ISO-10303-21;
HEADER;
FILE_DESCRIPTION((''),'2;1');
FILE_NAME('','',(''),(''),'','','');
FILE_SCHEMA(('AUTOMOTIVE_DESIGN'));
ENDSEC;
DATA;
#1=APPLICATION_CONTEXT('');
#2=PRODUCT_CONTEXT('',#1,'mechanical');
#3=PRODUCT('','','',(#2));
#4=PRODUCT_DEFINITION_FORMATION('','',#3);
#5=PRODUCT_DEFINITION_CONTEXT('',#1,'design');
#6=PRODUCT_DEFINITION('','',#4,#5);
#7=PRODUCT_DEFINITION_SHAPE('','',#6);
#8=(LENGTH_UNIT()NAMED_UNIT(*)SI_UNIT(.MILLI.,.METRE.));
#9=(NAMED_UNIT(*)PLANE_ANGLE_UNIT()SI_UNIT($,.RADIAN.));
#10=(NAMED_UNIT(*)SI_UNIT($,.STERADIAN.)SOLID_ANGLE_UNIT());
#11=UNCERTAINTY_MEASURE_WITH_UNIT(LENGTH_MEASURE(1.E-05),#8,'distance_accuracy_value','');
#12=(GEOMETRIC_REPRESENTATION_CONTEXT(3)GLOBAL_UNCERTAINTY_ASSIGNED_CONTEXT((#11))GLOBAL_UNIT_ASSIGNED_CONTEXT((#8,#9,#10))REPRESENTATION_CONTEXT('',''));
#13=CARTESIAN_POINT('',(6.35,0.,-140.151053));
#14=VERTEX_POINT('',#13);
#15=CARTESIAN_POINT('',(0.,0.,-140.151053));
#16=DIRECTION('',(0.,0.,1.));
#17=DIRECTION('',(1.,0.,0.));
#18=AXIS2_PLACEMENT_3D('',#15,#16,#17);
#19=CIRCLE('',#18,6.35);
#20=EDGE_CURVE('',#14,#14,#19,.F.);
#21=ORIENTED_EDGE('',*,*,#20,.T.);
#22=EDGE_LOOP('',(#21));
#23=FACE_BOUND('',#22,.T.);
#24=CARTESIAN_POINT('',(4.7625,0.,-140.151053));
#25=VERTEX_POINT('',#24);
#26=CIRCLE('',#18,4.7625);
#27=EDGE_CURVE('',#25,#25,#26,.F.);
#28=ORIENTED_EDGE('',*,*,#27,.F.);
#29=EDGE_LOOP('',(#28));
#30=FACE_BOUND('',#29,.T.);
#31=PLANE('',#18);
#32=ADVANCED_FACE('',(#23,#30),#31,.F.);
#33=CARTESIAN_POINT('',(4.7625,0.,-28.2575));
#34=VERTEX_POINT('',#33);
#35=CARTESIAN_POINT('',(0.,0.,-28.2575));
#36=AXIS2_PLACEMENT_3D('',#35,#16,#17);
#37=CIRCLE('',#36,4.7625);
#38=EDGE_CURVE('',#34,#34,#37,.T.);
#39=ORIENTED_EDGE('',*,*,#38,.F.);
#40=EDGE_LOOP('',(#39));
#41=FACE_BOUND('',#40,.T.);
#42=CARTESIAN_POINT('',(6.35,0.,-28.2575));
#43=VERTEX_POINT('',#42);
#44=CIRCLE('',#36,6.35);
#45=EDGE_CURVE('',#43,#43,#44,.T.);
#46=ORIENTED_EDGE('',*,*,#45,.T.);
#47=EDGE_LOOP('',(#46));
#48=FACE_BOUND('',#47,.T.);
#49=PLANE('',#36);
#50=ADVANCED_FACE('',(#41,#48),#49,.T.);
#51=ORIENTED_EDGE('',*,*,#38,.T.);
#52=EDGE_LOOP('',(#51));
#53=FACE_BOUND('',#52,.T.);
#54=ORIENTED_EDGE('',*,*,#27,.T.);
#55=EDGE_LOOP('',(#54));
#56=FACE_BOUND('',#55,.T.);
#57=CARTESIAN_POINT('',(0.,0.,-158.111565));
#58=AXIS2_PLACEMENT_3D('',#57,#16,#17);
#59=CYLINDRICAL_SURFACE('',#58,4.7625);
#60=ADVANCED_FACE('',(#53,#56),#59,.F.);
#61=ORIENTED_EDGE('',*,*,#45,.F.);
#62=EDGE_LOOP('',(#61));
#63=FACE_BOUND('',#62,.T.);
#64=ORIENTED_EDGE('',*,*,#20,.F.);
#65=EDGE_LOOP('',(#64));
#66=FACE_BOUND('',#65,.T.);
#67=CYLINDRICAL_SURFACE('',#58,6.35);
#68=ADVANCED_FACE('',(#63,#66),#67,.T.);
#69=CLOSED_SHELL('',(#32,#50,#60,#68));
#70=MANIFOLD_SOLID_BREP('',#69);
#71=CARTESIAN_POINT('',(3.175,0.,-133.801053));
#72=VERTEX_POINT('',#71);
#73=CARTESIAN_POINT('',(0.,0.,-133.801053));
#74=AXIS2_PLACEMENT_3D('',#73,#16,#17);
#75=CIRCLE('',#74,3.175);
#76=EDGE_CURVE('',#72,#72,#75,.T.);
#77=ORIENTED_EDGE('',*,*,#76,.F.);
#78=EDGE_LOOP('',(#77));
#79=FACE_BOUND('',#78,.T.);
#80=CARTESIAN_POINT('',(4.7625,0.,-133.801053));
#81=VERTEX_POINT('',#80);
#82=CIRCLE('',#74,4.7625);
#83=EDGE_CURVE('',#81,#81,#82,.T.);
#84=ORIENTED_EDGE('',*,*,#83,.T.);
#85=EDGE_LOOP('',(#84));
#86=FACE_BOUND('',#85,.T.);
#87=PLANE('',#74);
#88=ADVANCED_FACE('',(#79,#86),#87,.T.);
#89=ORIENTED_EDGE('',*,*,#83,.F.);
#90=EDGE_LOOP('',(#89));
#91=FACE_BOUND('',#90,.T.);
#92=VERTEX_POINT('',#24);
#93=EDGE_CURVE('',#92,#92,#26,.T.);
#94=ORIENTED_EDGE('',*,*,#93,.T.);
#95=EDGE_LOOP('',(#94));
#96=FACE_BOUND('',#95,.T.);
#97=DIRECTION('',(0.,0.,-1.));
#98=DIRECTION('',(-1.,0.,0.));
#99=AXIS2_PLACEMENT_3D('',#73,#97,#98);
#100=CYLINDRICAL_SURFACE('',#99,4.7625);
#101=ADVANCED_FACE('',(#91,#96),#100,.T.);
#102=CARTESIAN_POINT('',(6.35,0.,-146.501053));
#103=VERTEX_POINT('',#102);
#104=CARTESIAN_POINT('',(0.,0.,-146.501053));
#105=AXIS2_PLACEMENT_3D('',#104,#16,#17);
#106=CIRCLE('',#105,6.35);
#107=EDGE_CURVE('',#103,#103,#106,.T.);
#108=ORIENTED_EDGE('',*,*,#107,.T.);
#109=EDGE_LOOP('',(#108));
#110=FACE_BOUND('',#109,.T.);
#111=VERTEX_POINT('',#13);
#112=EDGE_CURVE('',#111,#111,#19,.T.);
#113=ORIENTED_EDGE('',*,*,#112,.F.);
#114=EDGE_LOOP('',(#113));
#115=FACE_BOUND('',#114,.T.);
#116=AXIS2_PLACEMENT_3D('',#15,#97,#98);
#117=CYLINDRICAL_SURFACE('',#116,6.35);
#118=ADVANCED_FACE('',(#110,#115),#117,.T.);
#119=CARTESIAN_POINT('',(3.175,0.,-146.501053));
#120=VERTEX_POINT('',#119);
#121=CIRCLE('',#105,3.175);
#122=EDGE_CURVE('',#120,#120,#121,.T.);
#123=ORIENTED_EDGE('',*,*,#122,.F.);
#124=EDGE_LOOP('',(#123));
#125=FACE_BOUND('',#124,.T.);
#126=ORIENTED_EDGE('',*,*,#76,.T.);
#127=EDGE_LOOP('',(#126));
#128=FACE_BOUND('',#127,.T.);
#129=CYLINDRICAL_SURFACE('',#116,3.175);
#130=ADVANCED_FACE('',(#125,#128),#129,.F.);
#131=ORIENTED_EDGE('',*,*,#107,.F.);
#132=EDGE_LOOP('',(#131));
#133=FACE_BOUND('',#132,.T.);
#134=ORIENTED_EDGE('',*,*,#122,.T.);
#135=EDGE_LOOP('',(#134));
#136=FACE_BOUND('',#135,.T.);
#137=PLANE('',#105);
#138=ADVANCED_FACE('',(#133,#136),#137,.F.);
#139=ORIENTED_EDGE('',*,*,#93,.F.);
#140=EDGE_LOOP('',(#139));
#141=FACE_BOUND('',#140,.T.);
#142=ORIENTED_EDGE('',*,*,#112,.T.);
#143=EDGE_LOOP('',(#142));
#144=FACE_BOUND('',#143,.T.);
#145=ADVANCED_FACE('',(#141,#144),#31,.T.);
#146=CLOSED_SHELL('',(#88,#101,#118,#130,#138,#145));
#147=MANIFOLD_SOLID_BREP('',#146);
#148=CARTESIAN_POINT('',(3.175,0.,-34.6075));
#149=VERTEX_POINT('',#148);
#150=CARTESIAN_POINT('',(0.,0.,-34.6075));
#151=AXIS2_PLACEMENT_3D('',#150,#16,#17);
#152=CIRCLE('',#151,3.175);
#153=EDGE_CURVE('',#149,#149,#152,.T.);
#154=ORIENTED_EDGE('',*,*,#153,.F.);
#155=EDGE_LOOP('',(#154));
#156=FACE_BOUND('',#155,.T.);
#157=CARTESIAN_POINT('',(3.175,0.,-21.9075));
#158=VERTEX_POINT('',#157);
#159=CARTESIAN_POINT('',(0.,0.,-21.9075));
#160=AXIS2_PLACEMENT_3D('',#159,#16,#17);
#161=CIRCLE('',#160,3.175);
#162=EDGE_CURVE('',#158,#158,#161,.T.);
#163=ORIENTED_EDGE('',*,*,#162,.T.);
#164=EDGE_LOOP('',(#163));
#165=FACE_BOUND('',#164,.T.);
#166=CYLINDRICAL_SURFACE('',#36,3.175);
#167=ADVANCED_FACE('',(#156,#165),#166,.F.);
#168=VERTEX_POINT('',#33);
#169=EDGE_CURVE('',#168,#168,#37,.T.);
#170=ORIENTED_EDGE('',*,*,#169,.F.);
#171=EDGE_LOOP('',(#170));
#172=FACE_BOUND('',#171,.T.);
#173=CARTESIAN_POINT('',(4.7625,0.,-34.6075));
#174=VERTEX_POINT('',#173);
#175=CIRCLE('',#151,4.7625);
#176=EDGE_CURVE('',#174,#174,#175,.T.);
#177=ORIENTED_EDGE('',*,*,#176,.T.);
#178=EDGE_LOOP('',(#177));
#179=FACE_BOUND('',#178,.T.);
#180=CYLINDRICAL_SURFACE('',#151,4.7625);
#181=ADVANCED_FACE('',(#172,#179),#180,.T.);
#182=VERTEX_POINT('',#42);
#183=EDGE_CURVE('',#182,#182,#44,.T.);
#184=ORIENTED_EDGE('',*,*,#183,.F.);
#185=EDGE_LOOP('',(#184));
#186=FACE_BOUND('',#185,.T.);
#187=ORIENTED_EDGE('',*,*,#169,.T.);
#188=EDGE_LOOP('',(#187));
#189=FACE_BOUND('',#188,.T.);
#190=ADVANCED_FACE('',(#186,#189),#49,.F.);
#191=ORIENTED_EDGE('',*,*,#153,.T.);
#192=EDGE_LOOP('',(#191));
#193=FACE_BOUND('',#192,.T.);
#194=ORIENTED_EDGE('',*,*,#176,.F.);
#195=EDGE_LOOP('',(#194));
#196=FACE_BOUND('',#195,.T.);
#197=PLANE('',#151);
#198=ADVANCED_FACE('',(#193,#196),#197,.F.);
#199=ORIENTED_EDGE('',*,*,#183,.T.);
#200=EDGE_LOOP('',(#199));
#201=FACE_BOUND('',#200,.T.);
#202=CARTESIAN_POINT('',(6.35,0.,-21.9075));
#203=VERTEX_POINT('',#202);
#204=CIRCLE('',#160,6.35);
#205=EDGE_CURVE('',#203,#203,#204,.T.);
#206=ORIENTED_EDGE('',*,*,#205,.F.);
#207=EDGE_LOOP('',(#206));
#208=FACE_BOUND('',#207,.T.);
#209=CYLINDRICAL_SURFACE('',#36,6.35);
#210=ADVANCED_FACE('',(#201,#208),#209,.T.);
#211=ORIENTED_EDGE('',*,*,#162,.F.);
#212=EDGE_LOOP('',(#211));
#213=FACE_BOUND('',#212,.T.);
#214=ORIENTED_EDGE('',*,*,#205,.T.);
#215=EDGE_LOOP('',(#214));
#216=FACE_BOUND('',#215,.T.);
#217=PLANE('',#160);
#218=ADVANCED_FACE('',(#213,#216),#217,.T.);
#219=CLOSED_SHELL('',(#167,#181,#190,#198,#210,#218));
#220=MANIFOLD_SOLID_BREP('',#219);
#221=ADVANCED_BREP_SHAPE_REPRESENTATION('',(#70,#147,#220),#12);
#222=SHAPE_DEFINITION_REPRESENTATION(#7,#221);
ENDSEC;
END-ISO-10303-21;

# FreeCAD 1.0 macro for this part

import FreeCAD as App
import Part
import Sketcher

V = App.Vector
Q = App.Units.Quantity

doc = App.newDocument("Part")
body = doc.addObject("PartDesign::Body", "Body")

# Sketch on XY plane
sketch1 = doc.addObject("Sketcher::SketchObject", "Sketch")
body.addObject(sketch1)
sketch1.AttachmentSupport = (doc.XY_Plane, [""])
sketch1.MapMode = "FlatFace"
sketch1.AttachmentOffset = App.Placement(V(0, 0, -0.8625 * 25.4), App.Rotation())
sketch1.addGeometry(Part.Circle(V(0, 0, 0), V(0, 0, 1), 6.3), False)
sketch1.addGeometry(Part.Circle(V(0, 0, 0), V(0, 0, 1), 3.2), False)
sketch1.addConstraint(Sketcher.Constraint("Coincident", 0, 3, -1, 1))
sketch1.addConstraint(Sketcher.Constraint("Coincident", 1, 3, -1, 1))
sketch1.addConstraint(Sketcher.Constraint("Diameter", 0, Q("0.5 in")))
sketch1.addConstraint(Sketcher.Constraint("Diameter", 1, Q("0.25 in")))
pad1 = doc.addObject("PartDesign::Pad", "Pad")
body.addObject(pad1)
pad1.Profile = sketch1
pad1.Length = Q("0.25 in")
pad1.Reversed = True

# Sketch on XY plane
sketch2 = doc.addObject("Sketcher::SketchObject", "Sketch001")
body.addObject(sketch2)
sketch2.AttachmentSupport = (doc.XY_Plane, [""])
sketch2.MapMode = "FlatFace"
sketch2.AttachmentOffset = App.Placement(V(0, 0, -1.1125 * 25.4), App.Rotation())
sketch2.addGeometry(Part.Circle(V(0, 0, 0), V(0, 0, 1), 4.8), False)
sketch2.addGeometry(Part.Circle(V(0, 0, 0), V(0, 0, 1), 3.2), False)
sketch2.addConstraint(Sketcher.Constraint("Coincident", 0, 3, -1, 1))
sketch2.addConstraint(Sketcher.Constraint("Coincident", 1, 3, -1, 1))
sketch2.addConstraint(Sketcher.Constraint("Diameter", 1, Q("0.25 in")))
sketch2.addConstraint(Sketcher.Constraint("Diameter", 0, Q("0.375 in")))
pad2 = doc.addObject("PartDesign::Pad", "Pad001")
body.addObject(pad2)
pad2.Profile = sketch2
pad2.Length = Q("0.25 in")
pad2.Reversed = True
body2 = doc.addObject("PartDesign::Body", "Body001")

# Sketch on XY plane
sketch3 = doc.addObject("Sketcher::SketchObject", "Sketch002")
body2.addObject(sketch3)
sketch3.AttachmentSupport = (doc.getObject("XY_Plane001"), [""])
sketch3.MapMode = "FlatFace"
sketch3.AttachmentOffset = App.Placement(V(0, 0, -146.501053), App.Rotation())
sketch3.addGeometry(Part.Circle(V(0, 0, 0), V(0, 0, 1), 6.3), False)
sketch3.addGeometry(Part.Circle(V(0, 0, 0), V(0, 0, 1), 3.2), False)
sketch3.addConstraint(Sketcher.Constraint("Coincident", 0, 3, -1, 1))
sketch3.addConstraint(Sketcher.Constraint("Coincident", 1, 3, -1, 1))
sketch3.addConstraint(Sketcher.Constraint("Diameter", 0, Q("0.5 in")))
sketch3.addConstraint(Sketcher.Constraint("Diameter", 1, Q("0.25 in")))
pad3 = doc.addObject("PartDesign::Pad", "Pad002")
body2.addObject(pad3)
pad3.Profile = sketch3
pad3.Length = Q("0.25 in")

# Sketch on XY plane
sketch4 = doc.addObject("Sketcher::SketchObject", "Sketch003")
body2.addObject(sketch4)
sketch4.AttachmentSupport = (doc.getObject("XY_Plane001"), [""])
sketch4.MapMode = "FlatFace"
sketch4.AttachmentOffset = App.Placement(V(0, 0, -133.801053), App.Rotation())
sketch4.addGeometry(Part.Circle(V(0, 0, 0), V(0, 0, 1), 4.8), False)
sketch4.addGeometry(Part.Circle(V(0, 0, 0), V(0, 0, 1), 3.2), False)
sketch4.addConstraint(Sketcher.Constraint("Coincident", 0, 3, -1, 1))
sketch4.addConstraint(Sketcher.Constraint("Coincident", 1, 3, -1, 1))
sketch4.addConstraint(Sketcher.Constraint("Diameter", 1, Q("0.25 in")))
sketch4.addConstraint(Sketcher.Constraint("Diameter", 0, Q("0.375 in")))
pad4 = doc.addObject("PartDesign::Pad", "Pad003")
body2.addObject(pad4)
pad4.Profile = sketch4
pad4.Length = Q("0.25 in")
pad4.Reversed = True
body3 = doc.addObject("PartDesign::Body", "Body002")

# Sketch on XY plane
sketch5 = doc.addObject("Sketcher::SketchObject", "Sketch004")
body3.addObject(sketch5)
sketch5.AttachmentSupport = (doc.getObject("XY_Plane002"), [""])
sketch5.MapMode = "FlatFace"
sketch5.AttachmentOffset = App.Placement(V(0, 0, -1.1125 * 25.4), App.Rotation())
sketch5.addGeometry(Part.Circle(V(0, 0, 0), V(0, 0, 1), 6.3), False)
sketch5.addGeometry(Part.Circle(V(0, 0, 0), V(0, 0, 1), 4.8), False)
sketch5.addConstraint(Sketcher.Constraint("Coincident", 0, 3, -1, 1))
sketch5.addConstraint(Sketcher.Constraint("Coincident", 1, 3, -1, 1))
sketch5.addConstraint(Sketcher.Constraint("Diameter", 0, Q("0.5 in")))
sketch5.addConstraint(Sketcher.Constraint("Diameter", 1, Q("0.375 in")))
pad5 = doc.addObject("PartDesign::Pad", "Pad004")
body3.addObject(pad5)
pad5.Profile = sketch5
pad5.Length = 111.893553
pad5.Reversed = True

doc.recompute()
